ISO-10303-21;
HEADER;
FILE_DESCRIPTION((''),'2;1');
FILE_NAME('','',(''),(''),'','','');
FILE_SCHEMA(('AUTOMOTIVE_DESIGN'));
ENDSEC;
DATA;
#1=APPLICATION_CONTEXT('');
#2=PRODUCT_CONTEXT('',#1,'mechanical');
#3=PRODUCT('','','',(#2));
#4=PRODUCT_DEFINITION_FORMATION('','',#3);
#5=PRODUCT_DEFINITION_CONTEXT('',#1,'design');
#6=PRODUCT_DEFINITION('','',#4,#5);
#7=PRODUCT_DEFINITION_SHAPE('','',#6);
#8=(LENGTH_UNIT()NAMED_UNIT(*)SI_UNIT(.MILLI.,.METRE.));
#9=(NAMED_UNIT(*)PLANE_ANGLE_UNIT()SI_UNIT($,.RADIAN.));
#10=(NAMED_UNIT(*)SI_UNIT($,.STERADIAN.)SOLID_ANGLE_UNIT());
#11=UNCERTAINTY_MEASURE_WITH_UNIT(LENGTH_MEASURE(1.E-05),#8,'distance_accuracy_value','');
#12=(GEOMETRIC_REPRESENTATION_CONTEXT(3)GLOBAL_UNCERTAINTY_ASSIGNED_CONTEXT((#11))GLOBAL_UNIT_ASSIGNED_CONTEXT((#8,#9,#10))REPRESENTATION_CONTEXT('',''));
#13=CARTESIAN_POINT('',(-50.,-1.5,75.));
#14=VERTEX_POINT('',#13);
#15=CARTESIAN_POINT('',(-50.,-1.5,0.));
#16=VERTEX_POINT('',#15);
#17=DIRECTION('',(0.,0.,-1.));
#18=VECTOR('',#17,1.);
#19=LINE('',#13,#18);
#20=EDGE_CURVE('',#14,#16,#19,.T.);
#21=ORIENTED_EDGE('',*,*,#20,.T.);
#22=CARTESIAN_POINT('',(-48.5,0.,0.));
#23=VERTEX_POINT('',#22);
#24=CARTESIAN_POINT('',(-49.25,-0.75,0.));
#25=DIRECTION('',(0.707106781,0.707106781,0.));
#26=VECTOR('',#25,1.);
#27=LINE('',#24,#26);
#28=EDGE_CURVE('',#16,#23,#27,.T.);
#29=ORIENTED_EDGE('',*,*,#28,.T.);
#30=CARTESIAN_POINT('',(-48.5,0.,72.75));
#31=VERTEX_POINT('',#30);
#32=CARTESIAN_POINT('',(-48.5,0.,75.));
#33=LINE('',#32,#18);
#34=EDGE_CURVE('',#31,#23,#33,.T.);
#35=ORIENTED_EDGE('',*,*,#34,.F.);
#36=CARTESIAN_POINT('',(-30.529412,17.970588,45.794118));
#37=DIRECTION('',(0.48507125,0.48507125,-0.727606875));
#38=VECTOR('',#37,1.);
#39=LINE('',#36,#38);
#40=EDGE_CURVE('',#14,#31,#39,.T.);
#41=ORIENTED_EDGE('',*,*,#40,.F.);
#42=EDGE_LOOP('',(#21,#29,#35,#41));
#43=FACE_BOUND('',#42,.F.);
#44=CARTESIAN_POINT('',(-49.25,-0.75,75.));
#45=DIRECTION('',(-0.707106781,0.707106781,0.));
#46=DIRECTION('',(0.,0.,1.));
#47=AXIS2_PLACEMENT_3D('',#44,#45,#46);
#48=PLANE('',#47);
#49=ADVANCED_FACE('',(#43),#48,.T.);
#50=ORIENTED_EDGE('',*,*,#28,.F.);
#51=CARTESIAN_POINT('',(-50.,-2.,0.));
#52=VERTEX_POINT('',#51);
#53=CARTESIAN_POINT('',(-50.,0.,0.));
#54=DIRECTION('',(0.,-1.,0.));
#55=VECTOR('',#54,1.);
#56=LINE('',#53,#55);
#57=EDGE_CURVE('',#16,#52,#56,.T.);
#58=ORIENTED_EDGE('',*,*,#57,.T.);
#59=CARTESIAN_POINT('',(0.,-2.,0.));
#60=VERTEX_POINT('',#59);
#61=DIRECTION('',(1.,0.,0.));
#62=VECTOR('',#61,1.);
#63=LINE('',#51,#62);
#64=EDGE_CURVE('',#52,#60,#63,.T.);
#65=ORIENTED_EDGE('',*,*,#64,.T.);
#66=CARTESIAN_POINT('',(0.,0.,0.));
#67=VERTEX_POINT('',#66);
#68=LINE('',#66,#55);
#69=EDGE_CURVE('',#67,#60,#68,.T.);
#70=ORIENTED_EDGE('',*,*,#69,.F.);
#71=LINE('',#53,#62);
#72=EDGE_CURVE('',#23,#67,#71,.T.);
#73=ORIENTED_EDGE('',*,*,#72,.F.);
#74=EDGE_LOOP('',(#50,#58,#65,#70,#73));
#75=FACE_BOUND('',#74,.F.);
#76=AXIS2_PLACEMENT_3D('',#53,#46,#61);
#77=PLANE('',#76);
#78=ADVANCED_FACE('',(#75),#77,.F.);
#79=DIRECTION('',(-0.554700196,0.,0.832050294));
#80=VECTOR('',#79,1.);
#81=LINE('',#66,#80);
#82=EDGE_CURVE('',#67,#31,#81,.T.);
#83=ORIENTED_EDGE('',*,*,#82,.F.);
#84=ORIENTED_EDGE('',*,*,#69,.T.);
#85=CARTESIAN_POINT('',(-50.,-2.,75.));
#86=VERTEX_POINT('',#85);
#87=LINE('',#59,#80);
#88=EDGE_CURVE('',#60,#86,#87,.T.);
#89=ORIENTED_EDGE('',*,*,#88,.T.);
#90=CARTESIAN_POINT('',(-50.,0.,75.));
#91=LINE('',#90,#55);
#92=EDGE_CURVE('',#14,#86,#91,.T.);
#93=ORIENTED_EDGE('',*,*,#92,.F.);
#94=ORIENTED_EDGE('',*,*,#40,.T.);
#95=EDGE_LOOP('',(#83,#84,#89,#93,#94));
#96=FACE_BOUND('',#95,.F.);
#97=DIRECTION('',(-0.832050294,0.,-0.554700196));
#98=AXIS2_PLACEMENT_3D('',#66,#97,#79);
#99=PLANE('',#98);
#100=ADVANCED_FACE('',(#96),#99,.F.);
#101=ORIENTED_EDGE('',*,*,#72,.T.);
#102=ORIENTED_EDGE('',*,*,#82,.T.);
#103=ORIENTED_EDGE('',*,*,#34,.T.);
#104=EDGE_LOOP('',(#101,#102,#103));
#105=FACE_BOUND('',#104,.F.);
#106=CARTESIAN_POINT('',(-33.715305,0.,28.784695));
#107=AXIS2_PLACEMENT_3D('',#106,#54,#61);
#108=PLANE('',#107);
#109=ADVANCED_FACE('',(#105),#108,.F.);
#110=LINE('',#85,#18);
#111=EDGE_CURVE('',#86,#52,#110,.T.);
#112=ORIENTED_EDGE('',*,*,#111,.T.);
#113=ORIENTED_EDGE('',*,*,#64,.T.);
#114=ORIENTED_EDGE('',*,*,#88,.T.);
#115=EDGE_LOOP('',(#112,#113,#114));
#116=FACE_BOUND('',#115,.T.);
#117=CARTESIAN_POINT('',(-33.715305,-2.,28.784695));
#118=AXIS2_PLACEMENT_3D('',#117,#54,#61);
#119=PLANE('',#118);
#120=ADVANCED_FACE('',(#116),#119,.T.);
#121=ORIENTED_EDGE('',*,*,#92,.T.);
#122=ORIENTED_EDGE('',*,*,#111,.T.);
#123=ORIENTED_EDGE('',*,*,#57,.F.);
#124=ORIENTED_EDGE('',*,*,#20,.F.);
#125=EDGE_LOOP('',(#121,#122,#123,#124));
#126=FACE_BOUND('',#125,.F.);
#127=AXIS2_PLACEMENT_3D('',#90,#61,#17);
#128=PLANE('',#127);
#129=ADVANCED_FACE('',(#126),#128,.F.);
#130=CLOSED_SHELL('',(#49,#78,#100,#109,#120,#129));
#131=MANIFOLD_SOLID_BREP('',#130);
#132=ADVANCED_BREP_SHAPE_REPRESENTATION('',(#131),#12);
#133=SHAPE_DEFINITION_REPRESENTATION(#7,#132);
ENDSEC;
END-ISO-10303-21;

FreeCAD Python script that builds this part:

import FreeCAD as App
import Part
import Sketcher

V = App.Vector
Q = App.Units.Quantity


def edges_at(feature, points):
    """Names of the edges that pass closest to the given points."""
    edges = feature.Shape.Edges
    near = lambda p: min(range(len(edges)), key=lambda i: edges[i].distToShape(Part.Vertex(*p))[0])
    return sorted({f"Edge{near(p) + 1}" for p in points})


def add_polygon(sketch, points):
    """Adds a closed chain of lines whose ends are joined by coincident constraints."""
    first, n = sketch.GeometryCount, len(points)
    for a, b in zip(points, points[1:] + points[:1]):
        sketch.addGeometry(Part.LineSegment(App.Vector(*a, 0), App.Vector(*b, 0)), False)
    for i in range(n):
        sketch.addConstraint(Sketcher.Constraint("Coincident", first + i, 2, first + (i + 1) % n, 1))

doc = App.newDocument("Part")
body = doc.addObject("PartDesign::Body", "Body")

# Sketch on XZ plane
sketch1 = body.newObject("Sketcher::SketchObject", "Sketch")
sketch1.AttachmentSupport = (doc.getObject("XZ_Plane"), [""])
sketch1.MapMode = "FlatFace"
add_polygon(sketch1, [(-50, 75), (-50, 0), (0, 0)])  # lines 0-2
sketch1.addConstraint([
    Sketcher.Constraint("Vertical", 0),
    Sketcher.Constraint("Horizontal", 1),
    Sketcher.Constraint("Coincident", 1, 2, -1, 1),
    Sketcher.Constraint("DistanceX", 1, 1, 1, 2, Q("50 mm")),
    Sketcher.Constraint("DistanceY", 0, 2, 0, 1, Q("75 mm")),
])
pad1 = body.newObject("PartDesign::Pad", "Pad")
pad1.Profile = sketch1
pad1.Length = 2
doc.recompute()

chamfer = body.newObject("PartDesign::Chamfer", "Chamfer")
chamfer.Base = (pad1, edges_at(pad1, [(-50, 0, 37.5)]))
chamfer.Size = 1.5

doc.recompute()
